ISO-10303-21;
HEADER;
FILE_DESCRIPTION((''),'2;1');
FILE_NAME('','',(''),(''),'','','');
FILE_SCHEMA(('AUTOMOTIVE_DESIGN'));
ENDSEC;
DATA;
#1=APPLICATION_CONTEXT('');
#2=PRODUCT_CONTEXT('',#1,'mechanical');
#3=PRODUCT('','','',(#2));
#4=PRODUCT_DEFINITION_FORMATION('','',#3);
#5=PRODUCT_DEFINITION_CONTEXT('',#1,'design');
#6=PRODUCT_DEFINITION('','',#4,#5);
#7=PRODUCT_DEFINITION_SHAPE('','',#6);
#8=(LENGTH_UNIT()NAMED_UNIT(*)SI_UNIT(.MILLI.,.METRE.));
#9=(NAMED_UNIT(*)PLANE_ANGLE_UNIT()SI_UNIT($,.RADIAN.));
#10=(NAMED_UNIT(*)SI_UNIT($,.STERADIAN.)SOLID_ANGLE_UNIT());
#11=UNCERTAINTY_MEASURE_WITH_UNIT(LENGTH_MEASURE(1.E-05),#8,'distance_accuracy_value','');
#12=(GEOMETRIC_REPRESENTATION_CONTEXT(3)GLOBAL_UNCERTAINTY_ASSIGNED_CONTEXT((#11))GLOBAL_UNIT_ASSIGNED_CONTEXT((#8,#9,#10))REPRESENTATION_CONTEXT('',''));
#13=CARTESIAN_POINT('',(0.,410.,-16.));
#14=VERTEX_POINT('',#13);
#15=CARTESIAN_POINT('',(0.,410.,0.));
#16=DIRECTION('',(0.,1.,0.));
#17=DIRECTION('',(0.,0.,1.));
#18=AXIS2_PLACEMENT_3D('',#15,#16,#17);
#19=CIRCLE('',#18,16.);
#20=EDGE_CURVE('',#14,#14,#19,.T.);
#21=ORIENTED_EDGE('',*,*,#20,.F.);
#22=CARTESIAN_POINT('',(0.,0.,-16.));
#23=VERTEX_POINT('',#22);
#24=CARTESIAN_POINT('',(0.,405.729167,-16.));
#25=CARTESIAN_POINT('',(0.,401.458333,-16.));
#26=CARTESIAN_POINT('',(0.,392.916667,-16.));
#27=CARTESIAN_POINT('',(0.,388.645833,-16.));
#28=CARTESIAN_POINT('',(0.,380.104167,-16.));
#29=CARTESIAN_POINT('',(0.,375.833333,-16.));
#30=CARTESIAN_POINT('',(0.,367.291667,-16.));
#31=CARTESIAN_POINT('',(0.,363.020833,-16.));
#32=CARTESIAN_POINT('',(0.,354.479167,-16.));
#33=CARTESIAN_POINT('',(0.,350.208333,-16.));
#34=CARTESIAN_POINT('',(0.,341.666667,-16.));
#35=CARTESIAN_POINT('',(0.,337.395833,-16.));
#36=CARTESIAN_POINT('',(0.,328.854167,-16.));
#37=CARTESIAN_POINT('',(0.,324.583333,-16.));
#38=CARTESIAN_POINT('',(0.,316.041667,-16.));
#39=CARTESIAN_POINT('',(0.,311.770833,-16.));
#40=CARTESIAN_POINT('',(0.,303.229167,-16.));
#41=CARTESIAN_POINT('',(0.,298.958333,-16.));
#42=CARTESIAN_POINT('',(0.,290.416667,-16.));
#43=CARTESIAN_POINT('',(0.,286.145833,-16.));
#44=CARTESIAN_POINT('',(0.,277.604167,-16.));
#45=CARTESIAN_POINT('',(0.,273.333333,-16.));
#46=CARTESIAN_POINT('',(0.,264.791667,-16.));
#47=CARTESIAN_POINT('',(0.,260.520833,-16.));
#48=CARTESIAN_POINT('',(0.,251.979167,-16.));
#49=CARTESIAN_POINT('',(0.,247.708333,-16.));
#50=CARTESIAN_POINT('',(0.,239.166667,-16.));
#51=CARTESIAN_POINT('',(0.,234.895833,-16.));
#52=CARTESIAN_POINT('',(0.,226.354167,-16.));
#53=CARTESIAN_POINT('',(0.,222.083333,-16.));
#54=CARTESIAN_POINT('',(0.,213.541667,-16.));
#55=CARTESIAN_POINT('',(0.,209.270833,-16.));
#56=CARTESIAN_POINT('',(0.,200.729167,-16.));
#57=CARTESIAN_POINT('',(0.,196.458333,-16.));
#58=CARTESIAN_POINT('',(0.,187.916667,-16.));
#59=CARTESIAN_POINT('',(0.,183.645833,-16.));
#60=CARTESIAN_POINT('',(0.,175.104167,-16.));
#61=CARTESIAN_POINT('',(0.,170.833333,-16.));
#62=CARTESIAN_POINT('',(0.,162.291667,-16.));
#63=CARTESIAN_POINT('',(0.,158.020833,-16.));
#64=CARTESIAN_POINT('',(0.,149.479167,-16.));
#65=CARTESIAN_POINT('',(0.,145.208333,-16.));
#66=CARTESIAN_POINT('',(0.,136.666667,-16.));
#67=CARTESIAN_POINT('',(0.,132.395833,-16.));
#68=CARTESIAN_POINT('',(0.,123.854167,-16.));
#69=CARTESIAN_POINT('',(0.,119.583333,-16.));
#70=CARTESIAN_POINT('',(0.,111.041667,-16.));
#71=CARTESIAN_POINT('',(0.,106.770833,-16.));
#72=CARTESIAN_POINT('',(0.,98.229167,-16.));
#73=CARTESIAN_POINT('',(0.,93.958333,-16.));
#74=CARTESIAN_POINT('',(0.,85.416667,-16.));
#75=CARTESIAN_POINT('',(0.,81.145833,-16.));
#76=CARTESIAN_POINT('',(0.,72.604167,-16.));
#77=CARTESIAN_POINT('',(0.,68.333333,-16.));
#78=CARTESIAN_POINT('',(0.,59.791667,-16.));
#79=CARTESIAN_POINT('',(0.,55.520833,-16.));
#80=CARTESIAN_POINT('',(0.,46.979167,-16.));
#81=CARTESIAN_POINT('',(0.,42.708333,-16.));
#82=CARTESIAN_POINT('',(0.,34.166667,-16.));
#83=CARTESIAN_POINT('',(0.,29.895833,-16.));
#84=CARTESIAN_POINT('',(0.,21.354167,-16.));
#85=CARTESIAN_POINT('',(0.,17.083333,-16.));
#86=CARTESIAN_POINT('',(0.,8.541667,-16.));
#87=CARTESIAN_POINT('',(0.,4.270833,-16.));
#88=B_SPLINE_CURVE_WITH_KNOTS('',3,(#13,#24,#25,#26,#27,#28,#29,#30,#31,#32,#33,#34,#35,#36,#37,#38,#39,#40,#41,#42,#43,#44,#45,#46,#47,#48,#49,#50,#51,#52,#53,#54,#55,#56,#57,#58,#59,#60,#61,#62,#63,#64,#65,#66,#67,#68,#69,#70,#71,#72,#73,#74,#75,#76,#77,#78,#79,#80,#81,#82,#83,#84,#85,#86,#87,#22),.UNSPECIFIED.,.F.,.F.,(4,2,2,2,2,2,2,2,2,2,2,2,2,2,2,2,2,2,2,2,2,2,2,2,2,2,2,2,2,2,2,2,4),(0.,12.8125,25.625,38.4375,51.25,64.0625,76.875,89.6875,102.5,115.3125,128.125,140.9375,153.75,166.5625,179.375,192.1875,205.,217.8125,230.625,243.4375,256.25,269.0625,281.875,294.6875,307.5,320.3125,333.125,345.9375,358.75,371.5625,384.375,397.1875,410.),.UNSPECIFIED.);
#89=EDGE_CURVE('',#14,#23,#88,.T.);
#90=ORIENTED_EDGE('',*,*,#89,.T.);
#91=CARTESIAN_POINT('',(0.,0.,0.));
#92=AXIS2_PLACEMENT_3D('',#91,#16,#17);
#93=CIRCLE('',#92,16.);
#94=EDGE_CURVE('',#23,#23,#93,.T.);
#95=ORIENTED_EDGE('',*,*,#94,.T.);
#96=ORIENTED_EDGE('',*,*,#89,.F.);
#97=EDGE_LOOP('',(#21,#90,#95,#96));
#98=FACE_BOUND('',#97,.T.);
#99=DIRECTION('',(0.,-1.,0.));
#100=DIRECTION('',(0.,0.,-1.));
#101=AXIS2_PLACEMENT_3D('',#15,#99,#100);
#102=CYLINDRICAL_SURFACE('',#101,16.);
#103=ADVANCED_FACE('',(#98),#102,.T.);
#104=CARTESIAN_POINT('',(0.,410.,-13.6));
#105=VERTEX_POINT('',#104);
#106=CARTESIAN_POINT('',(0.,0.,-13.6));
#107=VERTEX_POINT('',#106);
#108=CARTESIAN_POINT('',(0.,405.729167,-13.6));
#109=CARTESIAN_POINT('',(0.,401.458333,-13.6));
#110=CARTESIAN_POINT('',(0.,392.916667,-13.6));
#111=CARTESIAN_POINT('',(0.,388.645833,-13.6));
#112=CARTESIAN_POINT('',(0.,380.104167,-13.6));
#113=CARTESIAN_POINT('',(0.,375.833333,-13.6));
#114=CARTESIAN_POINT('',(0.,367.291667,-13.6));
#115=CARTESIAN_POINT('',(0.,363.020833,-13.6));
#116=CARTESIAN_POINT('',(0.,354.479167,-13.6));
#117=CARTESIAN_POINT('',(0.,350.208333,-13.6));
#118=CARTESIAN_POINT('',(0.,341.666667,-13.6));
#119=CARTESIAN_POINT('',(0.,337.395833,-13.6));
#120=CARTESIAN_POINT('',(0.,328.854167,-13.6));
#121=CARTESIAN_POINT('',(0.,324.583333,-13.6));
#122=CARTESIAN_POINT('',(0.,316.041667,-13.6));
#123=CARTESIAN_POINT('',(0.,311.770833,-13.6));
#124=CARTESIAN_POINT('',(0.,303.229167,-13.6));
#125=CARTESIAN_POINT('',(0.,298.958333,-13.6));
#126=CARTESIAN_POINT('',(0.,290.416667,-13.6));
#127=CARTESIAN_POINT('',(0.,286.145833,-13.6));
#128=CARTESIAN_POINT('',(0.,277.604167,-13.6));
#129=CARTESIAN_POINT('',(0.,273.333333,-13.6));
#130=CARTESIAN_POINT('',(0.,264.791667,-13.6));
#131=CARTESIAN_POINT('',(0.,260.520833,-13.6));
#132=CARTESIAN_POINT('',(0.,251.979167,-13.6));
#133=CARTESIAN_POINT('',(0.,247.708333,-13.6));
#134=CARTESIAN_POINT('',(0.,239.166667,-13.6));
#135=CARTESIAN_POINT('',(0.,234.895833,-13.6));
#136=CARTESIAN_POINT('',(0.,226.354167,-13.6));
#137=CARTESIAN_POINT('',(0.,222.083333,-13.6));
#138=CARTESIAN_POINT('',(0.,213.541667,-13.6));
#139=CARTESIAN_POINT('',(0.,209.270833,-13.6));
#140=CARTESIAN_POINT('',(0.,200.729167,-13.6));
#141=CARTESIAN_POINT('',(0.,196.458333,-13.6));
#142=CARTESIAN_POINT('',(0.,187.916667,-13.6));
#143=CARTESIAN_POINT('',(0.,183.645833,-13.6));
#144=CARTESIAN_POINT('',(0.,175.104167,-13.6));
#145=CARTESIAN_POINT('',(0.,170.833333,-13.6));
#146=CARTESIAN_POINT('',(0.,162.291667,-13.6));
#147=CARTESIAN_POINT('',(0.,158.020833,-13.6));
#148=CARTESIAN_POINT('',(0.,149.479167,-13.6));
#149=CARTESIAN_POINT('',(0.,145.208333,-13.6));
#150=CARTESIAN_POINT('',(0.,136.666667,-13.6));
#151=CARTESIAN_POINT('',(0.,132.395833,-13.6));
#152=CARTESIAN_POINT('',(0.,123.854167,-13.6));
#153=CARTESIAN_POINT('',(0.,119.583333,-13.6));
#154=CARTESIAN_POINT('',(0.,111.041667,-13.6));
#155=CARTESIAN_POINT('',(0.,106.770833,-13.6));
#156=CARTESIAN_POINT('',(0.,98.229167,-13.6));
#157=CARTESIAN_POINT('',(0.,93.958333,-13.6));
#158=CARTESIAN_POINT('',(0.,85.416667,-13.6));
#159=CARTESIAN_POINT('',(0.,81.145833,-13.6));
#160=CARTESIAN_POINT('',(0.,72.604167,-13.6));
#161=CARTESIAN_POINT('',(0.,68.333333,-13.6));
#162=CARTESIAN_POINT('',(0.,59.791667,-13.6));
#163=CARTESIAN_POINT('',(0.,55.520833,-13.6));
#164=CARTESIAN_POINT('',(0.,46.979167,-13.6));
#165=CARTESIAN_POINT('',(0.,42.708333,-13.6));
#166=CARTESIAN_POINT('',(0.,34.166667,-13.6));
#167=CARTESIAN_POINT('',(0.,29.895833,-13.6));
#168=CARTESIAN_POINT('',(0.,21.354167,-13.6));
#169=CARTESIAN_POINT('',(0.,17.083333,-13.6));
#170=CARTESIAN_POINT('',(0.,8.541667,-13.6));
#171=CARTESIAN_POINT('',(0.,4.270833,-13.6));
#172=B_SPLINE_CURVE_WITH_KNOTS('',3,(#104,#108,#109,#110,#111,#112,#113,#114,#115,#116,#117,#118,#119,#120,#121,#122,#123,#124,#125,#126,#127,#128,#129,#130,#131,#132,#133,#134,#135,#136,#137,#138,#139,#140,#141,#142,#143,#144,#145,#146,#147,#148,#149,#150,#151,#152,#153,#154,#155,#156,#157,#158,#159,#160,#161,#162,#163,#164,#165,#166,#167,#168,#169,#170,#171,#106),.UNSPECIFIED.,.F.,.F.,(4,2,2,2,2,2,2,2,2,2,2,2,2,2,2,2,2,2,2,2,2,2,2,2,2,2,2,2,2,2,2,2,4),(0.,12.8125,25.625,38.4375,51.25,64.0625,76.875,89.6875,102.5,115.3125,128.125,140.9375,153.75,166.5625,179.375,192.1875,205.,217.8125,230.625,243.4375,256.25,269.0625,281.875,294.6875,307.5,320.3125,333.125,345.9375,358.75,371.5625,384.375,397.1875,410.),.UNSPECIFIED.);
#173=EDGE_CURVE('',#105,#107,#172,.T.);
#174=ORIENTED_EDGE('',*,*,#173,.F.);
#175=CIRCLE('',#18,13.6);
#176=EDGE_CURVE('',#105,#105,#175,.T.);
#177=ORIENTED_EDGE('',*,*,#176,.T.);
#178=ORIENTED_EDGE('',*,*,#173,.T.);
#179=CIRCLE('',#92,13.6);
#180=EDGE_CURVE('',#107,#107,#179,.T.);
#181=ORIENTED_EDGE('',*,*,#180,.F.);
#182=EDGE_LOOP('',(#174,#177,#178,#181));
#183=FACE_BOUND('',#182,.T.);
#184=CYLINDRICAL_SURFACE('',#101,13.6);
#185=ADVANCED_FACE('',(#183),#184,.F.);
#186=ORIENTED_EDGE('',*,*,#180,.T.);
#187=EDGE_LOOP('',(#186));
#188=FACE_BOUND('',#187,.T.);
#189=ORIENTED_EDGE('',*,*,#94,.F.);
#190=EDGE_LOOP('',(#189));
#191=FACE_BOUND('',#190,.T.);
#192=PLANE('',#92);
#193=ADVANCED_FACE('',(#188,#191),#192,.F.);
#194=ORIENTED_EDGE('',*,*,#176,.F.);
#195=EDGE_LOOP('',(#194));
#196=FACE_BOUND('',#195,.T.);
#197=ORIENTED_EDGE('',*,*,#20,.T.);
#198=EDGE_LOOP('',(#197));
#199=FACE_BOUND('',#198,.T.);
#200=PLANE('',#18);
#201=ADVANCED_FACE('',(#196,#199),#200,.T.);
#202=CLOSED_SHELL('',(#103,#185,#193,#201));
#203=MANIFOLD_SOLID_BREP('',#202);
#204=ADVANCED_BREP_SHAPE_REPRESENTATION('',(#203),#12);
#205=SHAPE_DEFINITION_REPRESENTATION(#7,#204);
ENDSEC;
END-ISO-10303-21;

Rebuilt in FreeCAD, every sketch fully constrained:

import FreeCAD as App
import Part
import Sketcher
Q = App.Units.Quantity

doc = App.newDocument("Part")
params = doc.addObject("Spreadsheet::Sheet", "Params")
for row, (alias, value) in enumerate([
    ("sketch1_diameter", "32 mm"),
    ("sketch1_diameter2", "27.2 mm"),
    ("pad1_length", "410 mm"),
], start=1):
    params.set(f"A{row}", alias)
    params.set(f"B{row}", "=" + value)
    params.setAlias(f"B{row}", alias)

body = doc.addObject("PartDesign::Body", "Body")

# Sketch on XZ plane
sketch1 = doc.addObject("Sketcher::SketchObject", "Sketch")
body.addObject(sketch1)
sketch1.AttachmentSupport = (doc.XZ_Plane, [""])
sketch1.MapMode = "FlatFace"
sketch1.addGeometry(Part.Circle(App.Vector(0, 0, 0), App.Vector(0, 0, 1), 16), False)
sketch1.addGeometry(Part.Circle(App.Vector(0, 0, 0), App.Vector(0, 0, 1), 14), False)
sketch1.addConstraint(Sketcher.Constraint("Coincident", 0, 3, -1, 1))
sketch1.addConstraint(Sketcher.Constraint("Coincident", 1, 3, -1, 1))
sketch1.addConstraint(Sketcher.Constraint("Diameter", 0, Q("32 mm")))
sketch1.addConstraint(Sketcher.Constraint("Diameter", 1, Q("27.2 mm")))
sketch1.setExpression("Constraints[2]", "Params.sketch1_diameter")
sketch1.setExpression("Constraints[3]", "Params.sketch1_diameter2")
pad1 = doc.addObject("PartDesign::Pad", "Pad")
body.addObject(pad1)
pad1.Profile = sketch1
pad1.setExpression("Length", "Params.pad1_length")
pad1.Reversed = True

doc.recompute()
